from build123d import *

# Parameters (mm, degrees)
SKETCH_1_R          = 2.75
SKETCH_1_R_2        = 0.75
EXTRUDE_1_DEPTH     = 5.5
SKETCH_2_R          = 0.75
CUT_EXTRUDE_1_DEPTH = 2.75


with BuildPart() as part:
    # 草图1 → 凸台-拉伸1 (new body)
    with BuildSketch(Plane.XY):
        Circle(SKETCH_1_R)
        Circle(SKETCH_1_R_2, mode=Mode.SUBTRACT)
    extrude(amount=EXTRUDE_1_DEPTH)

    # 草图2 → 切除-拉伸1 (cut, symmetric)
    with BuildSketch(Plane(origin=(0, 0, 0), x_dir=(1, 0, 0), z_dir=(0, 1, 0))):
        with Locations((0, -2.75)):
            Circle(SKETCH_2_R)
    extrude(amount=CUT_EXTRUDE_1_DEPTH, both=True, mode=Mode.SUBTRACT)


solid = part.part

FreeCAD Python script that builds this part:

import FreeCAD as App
import Part
import Sketcher
from FreeCAD import Vector
Q = App.Units.Quantity

doc = App.newDocument("Part")
body = doc.addObject("PartDesign::Body", "Body")

sketch1 = body.newObject("Sketcher::SketchObject", "Sketch")
sketch1.AttachmentSupport = (doc.getObject("XY_Plane"), [""])
sketch1.MapMode = "FlatFace"
sketch1.addGeometry([
    Part.Circle(Vector(0, 0, 0), Vector(0, 0, 1), 2.8),
    Part.Circle(Vector(0, 0, 0), Vector(0, 0, 1), 0.8),
], False)
sketch1.addConstraint([
    Sketcher.Constraint("Coincident", 0, 3, -1, 1),
    Sketcher.Constraint("Coincident", 1, 3, -1, 1),
    Sketcher.Constraint("Diameter", 0, Q("5.5 mm")),
    Sketcher.Constraint("Diameter", 1, Q("1.5 mm")),
])
pad1 = body.newObject("PartDesign::Pad", "Pad")
pad1.Profile = sketch1
pad1.Length = 5.5

sketch2 = body.newObject("Sketcher::SketchObject", "Sketch001")
sketch2.AttachmentSupport = (doc.getObject("XZ_Plane"), [""])
sketch2.MapMode = "FlatFace"
sketch2.addGeometry(Part.Circle(Vector(0, 2.8, 0), Vector(0, 0, 1), 0.8), False)
sketch2.addConstraint([
    Sketcher.Constraint("PointOnObject", 0, 3, -2),
    Sketcher.Constraint("Diameter", 0, Q("1.5 mm")),
    Sketcher.Constraint("DistanceY", -1, 1, 0, 3, Q("2.75 mm")),
])
pocket1 = body.newObject("PartDesign::Pocket", "Pocket")
pocket1.Profile = sketch2
pocket1.Length = 5.5
pocket1.Midplane = True

doc.recompute()
